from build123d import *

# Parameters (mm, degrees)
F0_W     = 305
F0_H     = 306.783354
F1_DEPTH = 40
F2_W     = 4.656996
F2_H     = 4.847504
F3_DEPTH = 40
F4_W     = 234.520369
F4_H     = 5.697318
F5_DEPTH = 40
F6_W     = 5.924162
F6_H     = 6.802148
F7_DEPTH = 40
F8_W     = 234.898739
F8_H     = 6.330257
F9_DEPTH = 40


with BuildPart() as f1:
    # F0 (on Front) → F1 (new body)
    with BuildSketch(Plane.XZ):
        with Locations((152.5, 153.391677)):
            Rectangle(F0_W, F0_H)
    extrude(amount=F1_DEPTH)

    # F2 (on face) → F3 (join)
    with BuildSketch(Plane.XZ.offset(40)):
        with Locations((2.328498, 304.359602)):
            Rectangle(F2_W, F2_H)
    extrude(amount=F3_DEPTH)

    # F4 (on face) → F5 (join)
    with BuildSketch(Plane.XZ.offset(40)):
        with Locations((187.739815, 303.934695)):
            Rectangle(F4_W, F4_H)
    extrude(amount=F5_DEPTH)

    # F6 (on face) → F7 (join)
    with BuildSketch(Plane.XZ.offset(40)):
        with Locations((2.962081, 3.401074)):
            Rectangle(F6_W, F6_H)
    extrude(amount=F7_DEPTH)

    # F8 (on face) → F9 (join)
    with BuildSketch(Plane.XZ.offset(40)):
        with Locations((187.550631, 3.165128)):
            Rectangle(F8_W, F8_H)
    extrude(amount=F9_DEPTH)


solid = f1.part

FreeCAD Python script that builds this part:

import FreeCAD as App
import Part
import Sketcher
from FreeCAD import Vector
Q = App.Units.Quantity

doc = App.newDocument("Part")
body = doc.addObject("PartDesign::Body", "Body")

# Sketch on XZ plane
sketch1 = doc.addObject("Sketcher::SketchObject", "Sketch")
body.addObject(sketch1)
sketch1.AttachmentSupport = (doc.XZ_Plane, [""])
sketch1.MapMode = "FlatFace"
sketch1.addGeometry([
    Part.LineSegment(Vector(0, 307, 0), Vector(0, 0, 0)),
    Part.LineSegment(Vector(0, 0, 0), Vector(305, 0, 0)),
    Part.LineSegment(Vector(305, 0, 0), Vector(305, 307, 0)),
    Part.LineSegment(Vector(305, 307, 0), Vector(0, 307, 0)),
], False)
sketch1.addConstraint([
    Sketcher.Constraint("Coincident", 0, 2, 1, 1),
    Sketcher.Constraint("Coincident", 1, 2, 2, 1),
    Sketcher.Constraint("Coincident", 2, 2, 3, 1),
    Sketcher.Constraint("Coincident", 3, 2, 0, 1),
    Sketcher.Constraint("Vertical", 0),
    Sketcher.Constraint("Horizontal", 1),
    Sketcher.Constraint("Vertical", 2),
    Sketcher.Constraint("Horizontal", 3),
    Sketcher.Constraint("Coincident", 0, 2, -1, 1),
    Sketcher.Constraint("DistanceX", 1, 1, 1, 2, Q("305 mm")),
    Sketcher.Constraint("DistanceY", 0, 2, 0, 1, Q("306.783354 mm")),
])
pad1 = doc.addObject("PartDesign::Pad", "Pad")
body.addObject(pad1)
pad1.Profile = sketch1
pad1.Length = 40

# Sketch on XZ plane
sketch2 = doc.addObject("Sketcher::SketchObject", "Sketch001")
body.addObject(sketch2)
sketch2.AttachmentSupport = (doc.XZ_Plane, [""])
sketch2.MapMode = "FlatFace"
sketch2.AttachmentOffset = App.Placement(Vector(0, 0, 40), App.Rotation())
sketch2.addGeometry([
    Part.LineSegment(Vector(0, 306.8, 0), Vector(0, 301.9, 0)),
    Part.LineSegment(Vector(0, 301.9, 0), Vector(4.7, 301.9, 0)),
    Part.LineSegment(Vector(4.7, 301.9, 0), Vector(4.7, 306.8, 0)),
    Part.LineSegment(Vector(4.7, 306.8, 0), Vector(0, 306.8, 0)),
], False)
sketch2.addConstraint([
    Sketcher.Constraint("Coincident", 0, 2, 1, 1),
    Sketcher.Constraint("Coincident", 1, 2, 2, 1),
    Sketcher.Constraint("Coincident", 2, 2, 3, 1),
    Sketcher.Constraint("Coincident", 3, 2, 0, 1),
    Sketcher.Constraint("Vertical", 0),
    Sketcher.Constraint("Horizontal", 1),
    Sketcher.Constraint("Vertical", 2),
    Sketcher.Constraint("Horizontal", 3),
    Sketcher.Constraint("PointOnObject", 0, 2, -2),
    Sketcher.Constraint("DistanceX", 1, 1, 1, 2, Q("4.656996 mm")),
    Sketcher.Constraint("DistanceY", 0, 2, 0, 1, Q("4.847504 mm")),
    Sketcher.Constraint("DistanceY", -1, 1, 0, 2, Q("301.93585 mm")),
])
pad2 = doc.addObject("PartDesign::Pad", "Pad001")
body.addObject(pad2)
pad2.Profile = sketch2
pad2.Length = 40

# Sketch on XZ plane
sketch3 = doc.addObject("Sketcher::SketchObject", "Sketch002")
body.addObject(sketch3)
sketch3.AttachmentSupport = (doc.XZ_Plane, [""])
sketch3.MapMode = "FlatFace"
sketch3.AttachmentOffset = App.Placement(Vector(0, 0, 40), App.Rotation())
sketch3.addGeometry([
    Part.LineSegment(Vector(70, 307, 0), Vector(70, 301, 0)),
    Part.LineSegment(Vector(70, 301, 0), Vector(305, 301, 0)),
    Part.LineSegment(Vector(305, 301, 0), Vector(305, 307, 0)),
    Part.LineSegment(Vector(305, 307, 0), Vector(70, 307, 0)),
], False)
sketch3.addConstraint([
    Sketcher.Constraint("Coincident", 0, 2, 1, 1),
    Sketcher.Constraint("Coincident", 1, 2, 2, 1),
    Sketcher.Constraint("Coincident", 2, 2, 3, 1),
    Sketcher.Constraint("Coincident", 3, 2, 0, 1),
    Sketcher.Constraint("Vertical", 0),
    Sketcher.Constraint("Horizontal", 1),
    Sketcher.Constraint("Vertical", 2),
    Sketcher.Constraint("Horizontal", 3),
    Sketcher.Constraint("DistanceX", -1, 1, 1, 2, Q("305 mm")),
    Sketcher.Constraint("DistanceX", 1, 1, 1, 2, Q("234.520369 mm")),
    Sketcher.Constraint("DistanceY", 0, 2, 0, 1, Q("5.697318 mm")),
    Sketcher.Constraint("DistanceY", -1, 1, 0, 2, Q("301.086036 mm")),
])
pad3 = doc.addObject("PartDesign::Pad", "Pad002")
body.addObject(pad3)
pad3.Profile = sketch3
pad3.Length = 40

# Sketch on XZ plane
sketch4 = doc.addObject("Sketcher::SketchObject", "Sketch003")
body.addObject(sketch4)
sketch4.AttachmentSupport = (doc.XZ_Plane, [""])
sketch4.MapMode = "FlatFace"
sketch4.AttachmentOffset = App.Placement(Vector(0, 0, 40), App.Rotation())
sketch4.addGeometry([
    Part.LineSegment(Vector(0, 7, 0), Vector(0, 0, 0)),
    Part.LineSegment(Vector(0, 0, 0), Vector(6, 0, 0)),
    Part.LineSegment(Vector(6, 0, 0), Vector(6, 7, 0)),
    Part.LineSegment(Vector(6, 7, 0), Vector(0, 7, 0)),
], False)
sketch4.addConstraint([
    Sketcher.Constraint("Coincident", 0, 2, 1, 1),
    Sketcher.Constraint("Coincident", 1, 2, 2, 1),
    Sketcher.Constraint("Coincident", 2, 2, 3, 1),
    Sketcher.Constraint("Coincident", 3, 2, 0, 1),
    Sketcher.Constraint("Vertical", 0),
    Sketcher.Constraint("Horizontal", 1),
    Sketcher.Constraint("Vertical", 2),
    Sketcher.Constraint("Horizontal", 3),
    Sketcher.Constraint("Coincident", 0, 2, -1, 1),
    Sketcher.Constraint("DistanceX", 1, 1, 1, 2, Q("5.924162 mm")),
    Sketcher.Constraint("DistanceY", 0, 2, 0, 1, Q("6.802148 mm")),
])
pad4 = doc.addObject("PartDesign::Pad", "Pad003")
body.addObject(pad4)
pad4.Profile = sketch4
pad4.Length = 40

# Sketch on XZ plane
sketch5 = doc.addObject("Sketcher::SketchObject", "Sketch004")
body.addObject(sketch5)
sketch5.AttachmentSupport = (doc.XZ_Plane, [""])
sketch5.MapMode = "FlatFace"
sketch5.AttachmentOffset = App.Placement(Vector(0, 0, 40), App.Rotation())
sketch5.addGeometry([
    Part.LineSegment(Vector(70, 6, 0), Vector(70, 0, 0)),
    Part.LineSegment(Vector(70, 0, 0), Vector(305, 0, 0)),
    Part.LineSegment(Vector(305, 0, 0), Vector(305, 6, 0)),
    Part.LineSegment(Vector(305, 6, 0), Vector(70, 6, 0)),
], False)
sketch5.addConstraint([
    Sketcher.Constraint("Coincident", 0, 2, 1, 1),
    Sketcher.Constraint("Coincident", 1, 2, 2, 1),
    Sketcher.Constraint("Coincident", 2, 2, 3, 1),
    Sketcher.Constraint("Coincident", 3, 2, 0, 1),
    Sketcher.Constraint("Vertical", 0),
    Sketcher.Constraint("Horizontal", 1),
    Sketcher.Constraint("Vertical", 2),
    Sketcher.Constraint("Horizontal", 3),
    Sketcher.Constraint("PointOnObject", 0, 2, -1),
    Sketcher.Constraint("DistanceX", -1, 1, 1, 2, Q("305 mm")),
    Sketcher.Constraint("DistanceX", 1, 1, 1, 2, Q("234.898739 mm")),
    Sketcher.Constraint("DistanceY", 0, 2, 0, 1, Q("6.330257 mm")),
])
pad5 = doc.addObject("PartDesign::Pad", "Pad004")
body.addObject(pad5)
pad5.Profile = sketch5
pad5.Length = 40

doc.recompute()
